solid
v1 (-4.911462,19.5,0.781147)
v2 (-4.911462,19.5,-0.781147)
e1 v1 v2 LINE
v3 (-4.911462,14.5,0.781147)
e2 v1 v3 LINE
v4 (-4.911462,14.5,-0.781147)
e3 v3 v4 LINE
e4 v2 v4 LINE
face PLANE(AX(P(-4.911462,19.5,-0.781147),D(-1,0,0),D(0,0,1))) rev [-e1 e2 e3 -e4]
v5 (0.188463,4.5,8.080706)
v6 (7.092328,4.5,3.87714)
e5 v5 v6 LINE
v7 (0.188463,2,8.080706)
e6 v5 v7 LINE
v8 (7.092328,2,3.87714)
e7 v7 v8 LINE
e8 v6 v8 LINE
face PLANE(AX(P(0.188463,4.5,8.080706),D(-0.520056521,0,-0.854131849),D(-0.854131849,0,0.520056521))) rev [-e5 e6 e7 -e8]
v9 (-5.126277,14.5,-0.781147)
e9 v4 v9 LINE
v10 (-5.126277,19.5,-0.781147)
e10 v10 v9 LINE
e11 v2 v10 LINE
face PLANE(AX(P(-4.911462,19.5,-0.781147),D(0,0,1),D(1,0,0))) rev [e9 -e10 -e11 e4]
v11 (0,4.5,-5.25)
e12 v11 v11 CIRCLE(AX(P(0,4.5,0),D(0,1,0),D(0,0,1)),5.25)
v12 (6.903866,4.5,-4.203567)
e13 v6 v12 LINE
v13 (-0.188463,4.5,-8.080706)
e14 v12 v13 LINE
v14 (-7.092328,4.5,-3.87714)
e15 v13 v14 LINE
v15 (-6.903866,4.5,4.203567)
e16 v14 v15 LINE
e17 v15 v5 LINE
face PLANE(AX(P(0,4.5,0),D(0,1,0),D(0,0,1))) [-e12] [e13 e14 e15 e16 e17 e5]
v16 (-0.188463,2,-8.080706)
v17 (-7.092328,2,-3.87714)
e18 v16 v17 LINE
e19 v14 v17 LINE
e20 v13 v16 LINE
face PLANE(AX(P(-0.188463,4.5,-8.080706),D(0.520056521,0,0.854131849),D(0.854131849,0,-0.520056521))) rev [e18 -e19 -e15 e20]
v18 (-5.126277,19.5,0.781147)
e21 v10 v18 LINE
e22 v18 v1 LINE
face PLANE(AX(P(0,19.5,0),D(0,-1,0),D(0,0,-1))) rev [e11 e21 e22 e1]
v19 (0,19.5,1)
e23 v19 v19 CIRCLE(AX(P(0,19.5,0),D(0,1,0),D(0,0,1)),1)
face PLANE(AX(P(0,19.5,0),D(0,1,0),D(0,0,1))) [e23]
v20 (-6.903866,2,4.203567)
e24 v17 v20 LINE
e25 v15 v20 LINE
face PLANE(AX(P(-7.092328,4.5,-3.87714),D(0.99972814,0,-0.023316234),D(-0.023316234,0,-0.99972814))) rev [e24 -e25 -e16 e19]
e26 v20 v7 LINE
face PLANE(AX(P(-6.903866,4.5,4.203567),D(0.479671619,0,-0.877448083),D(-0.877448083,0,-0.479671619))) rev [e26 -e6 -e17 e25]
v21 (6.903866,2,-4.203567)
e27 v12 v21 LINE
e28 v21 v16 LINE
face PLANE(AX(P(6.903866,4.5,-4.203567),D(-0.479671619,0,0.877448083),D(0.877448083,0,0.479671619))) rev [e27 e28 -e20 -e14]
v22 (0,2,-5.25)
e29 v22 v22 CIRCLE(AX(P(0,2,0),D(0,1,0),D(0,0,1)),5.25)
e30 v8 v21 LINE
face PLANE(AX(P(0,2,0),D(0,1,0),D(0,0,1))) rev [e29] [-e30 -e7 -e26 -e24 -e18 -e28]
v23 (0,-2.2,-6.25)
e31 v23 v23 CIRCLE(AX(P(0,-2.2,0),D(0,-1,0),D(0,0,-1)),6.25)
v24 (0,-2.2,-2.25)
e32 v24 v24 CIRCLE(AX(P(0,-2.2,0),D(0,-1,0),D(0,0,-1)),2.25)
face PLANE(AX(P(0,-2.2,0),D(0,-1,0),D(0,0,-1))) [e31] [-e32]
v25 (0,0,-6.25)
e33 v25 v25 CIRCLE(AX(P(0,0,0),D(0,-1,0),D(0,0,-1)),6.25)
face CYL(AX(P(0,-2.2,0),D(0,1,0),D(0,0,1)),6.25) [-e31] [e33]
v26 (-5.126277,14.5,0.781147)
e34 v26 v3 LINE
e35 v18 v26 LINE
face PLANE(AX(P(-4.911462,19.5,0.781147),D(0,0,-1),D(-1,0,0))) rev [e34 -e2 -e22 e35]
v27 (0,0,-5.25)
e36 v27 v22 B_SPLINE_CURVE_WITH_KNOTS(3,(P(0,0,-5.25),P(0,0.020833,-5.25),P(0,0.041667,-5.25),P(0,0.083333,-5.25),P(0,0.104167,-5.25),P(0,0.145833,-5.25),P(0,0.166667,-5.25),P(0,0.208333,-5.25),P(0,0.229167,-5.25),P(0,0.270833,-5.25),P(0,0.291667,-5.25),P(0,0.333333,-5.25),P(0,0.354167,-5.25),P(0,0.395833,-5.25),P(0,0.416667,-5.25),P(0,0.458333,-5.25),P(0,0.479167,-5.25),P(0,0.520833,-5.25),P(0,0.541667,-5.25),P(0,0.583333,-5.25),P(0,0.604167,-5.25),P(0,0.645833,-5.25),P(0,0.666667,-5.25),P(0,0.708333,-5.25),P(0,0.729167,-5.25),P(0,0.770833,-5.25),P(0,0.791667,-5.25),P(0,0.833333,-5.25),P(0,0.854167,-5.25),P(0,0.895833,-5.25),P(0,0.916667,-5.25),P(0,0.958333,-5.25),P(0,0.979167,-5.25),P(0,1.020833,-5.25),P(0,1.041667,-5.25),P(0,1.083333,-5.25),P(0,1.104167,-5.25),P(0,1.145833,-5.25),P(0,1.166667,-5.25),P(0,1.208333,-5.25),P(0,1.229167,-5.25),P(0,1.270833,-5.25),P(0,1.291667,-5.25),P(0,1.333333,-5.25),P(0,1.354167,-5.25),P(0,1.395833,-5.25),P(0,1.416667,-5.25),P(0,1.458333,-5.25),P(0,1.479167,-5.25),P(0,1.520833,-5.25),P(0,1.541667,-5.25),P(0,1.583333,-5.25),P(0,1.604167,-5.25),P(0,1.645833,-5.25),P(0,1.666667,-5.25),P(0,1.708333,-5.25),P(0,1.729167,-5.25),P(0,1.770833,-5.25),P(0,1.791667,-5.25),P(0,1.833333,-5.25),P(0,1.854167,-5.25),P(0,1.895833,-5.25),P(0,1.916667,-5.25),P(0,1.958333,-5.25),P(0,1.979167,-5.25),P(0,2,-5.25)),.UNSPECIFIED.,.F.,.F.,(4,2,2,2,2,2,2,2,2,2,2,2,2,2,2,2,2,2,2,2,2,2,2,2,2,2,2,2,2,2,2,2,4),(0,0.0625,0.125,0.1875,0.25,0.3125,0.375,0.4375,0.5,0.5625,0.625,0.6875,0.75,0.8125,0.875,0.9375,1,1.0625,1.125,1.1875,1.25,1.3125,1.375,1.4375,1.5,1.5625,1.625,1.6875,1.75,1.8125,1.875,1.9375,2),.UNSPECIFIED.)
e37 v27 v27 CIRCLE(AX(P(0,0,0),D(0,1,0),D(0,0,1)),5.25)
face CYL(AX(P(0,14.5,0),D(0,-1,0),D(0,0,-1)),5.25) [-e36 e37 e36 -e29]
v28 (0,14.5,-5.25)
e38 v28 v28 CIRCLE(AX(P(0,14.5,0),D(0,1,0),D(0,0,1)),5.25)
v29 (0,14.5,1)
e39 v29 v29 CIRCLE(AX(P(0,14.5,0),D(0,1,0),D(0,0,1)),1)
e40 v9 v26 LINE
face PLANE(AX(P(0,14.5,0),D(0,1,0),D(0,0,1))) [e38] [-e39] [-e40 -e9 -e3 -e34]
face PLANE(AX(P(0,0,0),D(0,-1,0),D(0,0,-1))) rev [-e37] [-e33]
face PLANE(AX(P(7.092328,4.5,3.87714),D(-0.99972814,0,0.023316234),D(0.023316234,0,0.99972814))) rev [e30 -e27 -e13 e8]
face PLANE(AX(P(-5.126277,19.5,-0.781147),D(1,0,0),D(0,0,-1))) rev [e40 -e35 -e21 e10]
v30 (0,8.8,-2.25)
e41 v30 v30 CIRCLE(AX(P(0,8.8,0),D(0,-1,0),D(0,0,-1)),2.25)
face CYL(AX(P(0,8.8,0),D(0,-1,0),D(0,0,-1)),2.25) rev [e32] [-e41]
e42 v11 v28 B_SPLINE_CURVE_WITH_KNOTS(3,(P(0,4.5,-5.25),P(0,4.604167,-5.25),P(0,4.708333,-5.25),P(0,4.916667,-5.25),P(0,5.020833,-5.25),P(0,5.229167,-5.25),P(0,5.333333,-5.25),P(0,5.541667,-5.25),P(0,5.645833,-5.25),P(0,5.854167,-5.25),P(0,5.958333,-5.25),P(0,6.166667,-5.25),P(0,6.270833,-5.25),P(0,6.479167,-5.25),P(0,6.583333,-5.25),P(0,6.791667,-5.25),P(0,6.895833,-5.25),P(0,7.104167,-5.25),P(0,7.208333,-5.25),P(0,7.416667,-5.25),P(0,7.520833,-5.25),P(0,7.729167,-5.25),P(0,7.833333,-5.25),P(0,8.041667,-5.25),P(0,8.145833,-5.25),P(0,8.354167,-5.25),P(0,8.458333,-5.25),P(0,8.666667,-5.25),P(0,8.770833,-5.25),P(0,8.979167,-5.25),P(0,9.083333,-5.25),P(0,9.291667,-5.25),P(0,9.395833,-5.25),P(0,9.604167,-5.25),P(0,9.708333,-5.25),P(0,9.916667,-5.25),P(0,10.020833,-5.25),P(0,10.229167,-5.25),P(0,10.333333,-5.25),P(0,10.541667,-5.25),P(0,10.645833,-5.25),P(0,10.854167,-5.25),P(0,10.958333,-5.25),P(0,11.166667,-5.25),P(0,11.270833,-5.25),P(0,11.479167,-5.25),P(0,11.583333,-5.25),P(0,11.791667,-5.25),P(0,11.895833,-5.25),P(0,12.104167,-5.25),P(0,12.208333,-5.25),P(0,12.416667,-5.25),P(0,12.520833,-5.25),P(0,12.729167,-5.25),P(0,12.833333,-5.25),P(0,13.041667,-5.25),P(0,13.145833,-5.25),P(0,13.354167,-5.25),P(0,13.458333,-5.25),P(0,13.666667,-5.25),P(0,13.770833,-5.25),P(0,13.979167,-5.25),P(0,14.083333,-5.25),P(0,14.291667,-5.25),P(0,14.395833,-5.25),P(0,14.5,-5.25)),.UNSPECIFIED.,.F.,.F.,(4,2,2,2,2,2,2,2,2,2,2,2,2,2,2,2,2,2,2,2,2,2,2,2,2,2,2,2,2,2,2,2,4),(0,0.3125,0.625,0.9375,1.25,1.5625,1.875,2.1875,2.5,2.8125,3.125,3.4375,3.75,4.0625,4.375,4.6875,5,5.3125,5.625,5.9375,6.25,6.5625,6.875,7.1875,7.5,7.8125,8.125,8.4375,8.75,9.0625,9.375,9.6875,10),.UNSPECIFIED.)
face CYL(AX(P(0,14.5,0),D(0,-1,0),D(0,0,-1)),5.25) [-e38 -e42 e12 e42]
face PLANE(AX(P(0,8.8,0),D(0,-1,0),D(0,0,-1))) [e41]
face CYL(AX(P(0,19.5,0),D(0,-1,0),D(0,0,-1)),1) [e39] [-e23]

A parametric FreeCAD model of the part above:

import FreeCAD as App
import Part
import Sketcher

V = App.Vector
Q = App.Units.Quantity


def add_polygon(sketch, points):
    """Adds a closed chain of lines whose ends are joined by coincident constraints."""
    first, n = sketch.GeometryCount, len(points)
    for a, b in zip(points, points[1:] + points[:1]):
        sketch.addGeometry(Part.LineSegment(App.Vector(*a, 0), App.Vector(*b, 0)), False)
    for i in range(n):
        sketch.addConstraint(Sketcher.Constraint("Coincident", first + i, 2, first + (i + 1) % n, 1))

doc = App.newDocument("Part")
body = doc.addObject("PartDesign::Body", "Body")

# Sketch on XZ plane
sketch1 = body.newObject("Sketcher::SketchObject", "Sketch")
sketch1.AttachmentSupport = (doc.getObject("XZ_Plane"), [""])
sketch1.MapMode = "FlatFace"
sketch1.addGeometry(Part.Circle(V(0, 0, 0), V(0, 0, 1), 5), False)
sketch1.addConstraint(Sketcher.Constraint("Coincident", 0, 3, -1, 1))
sketch1.addConstraint(Sketcher.Constraint("Diameter", 0, Q("10.5 mm")))
pad1 = body.newObject("PartDesign::Pad", "Pad")
pad1.Profile = sketch1
pad1.Length = 14.5
pad1.Reversed = True

# Sketch on XZ plane
sketch2 = body.newObject("Sketcher::SketchObject", "Sketch001")
sketch2.AttachmentSupport = (doc.getObject("XZ_Plane"), [""])
sketch2.MapMode = "FlatFace"
sketch2.AttachmentOffset = App.Placement(V(0, 0, -14.5), App.Rotation())
sketch2.addGeometry(Part.Circle(V(0, 0, 0), V(0, 0, 1), 1), False)  # 0
add_polygon(sketch2, [(-5.13, -0.78), (-5.13, 0.78), (-4.91, 0.78), (-4.91, -0.78)])  # lines 1-4
sketch2.addConstraint(Sketcher.Constraint("Vertical", 1))
sketch2.addConstraint(Sketcher.Constraint("Horizontal", 2))
sketch2.addConstraint(Sketcher.Constraint("Vertical", 3))
sketch2.addConstraint(Sketcher.Constraint("Horizontal", 4))
sketch2.addConstraint(Sketcher.Constraint("Coincident", 0, 3, -1, 1))
sketch2.addConstraint(Sketcher.Constraint("Diameter", 0, Q("2 mm")))
sketch2.addConstraint(Sketcher.Constraint("DistanceX", 2, 1, 2, 2, Q("0.214815 mm")))
sketch2.addConstraint(Sketcher.Constraint("DistanceY", 1, 1, 1, 2, Q("1.562294 mm")))
sketch2.addConstraint(Sketcher.Constraint("DistanceX", 2, 2, -1, 1, Q("4.911462 mm")))
sketch2.addConstraint(Sketcher.Constraint("DistanceY", -1, 1, 1, 2, Q("0.781147 mm")))
pad2 = body.newObject("PartDesign::Pad", "Pad001")
pad2.Profile = sketch2
pad2.Length = 5
pad2.Reversed = True

# Sketch on XZ plane
sketch3 = body.newObject("Sketcher::SketchObject", "Sketch002")
sketch3.AttachmentSupport = (doc.getObject("XZ_Plane"), [""])
sketch3.MapMode = "FlatFace"
sketch3.addGeometry(Part.Circle(V(0, 0, 0), V(0, 0, 1), 6), False)
sketch3.addConstraint(Sketcher.Constraint("Coincident", 0, 3, -1, 1))
sketch3.addConstraint(Sketcher.Constraint("Diameter", 0, Q("12.5 mm")))
pad3 = body.newObject("PartDesign::Pad", "Pad002")
pad3.Profile = sketch3
pad3.Length = 2.2

# Sketch on XZ plane
sketch4 = body.newObject("Sketcher::SketchObject", "Sketch003")
sketch4.AttachmentSupport = (doc.getObject("XZ_Plane"), [""])
sketch4.MapMode = "FlatFace"
sketch4.AttachmentOffset = App.Placement(V(0, 0, -2), App.Rotation())
add_polygon(sketch4, [(7, 4), (7, -4), (0, -8), (-7, -4), (-7, 4), (0, 8)])  # lines 0-5
sketch4.addConstraint(Sketcher.Constraint("Symmetric", 0, 2, 3, 2, -1, 1))
sketch4.addConstraint(Sketcher.Constraint("Symmetric", 1, 2, 4, 2, -1, 1))
sketch4.addConstraint(Sketcher.Constraint("Symmetric", 2, 2, 5, 2, -1, 1))
sketch4.addConstraint(Sketcher.Constraint("Equal", 0, 1))
sketch4.addConstraint(Sketcher.Constraint("Equal", 1, 2))
sketch4.addConstraint(Sketcher.Constraint("DistanceX", 2, 2, -1, 1, Q("7.092328 mm")))
sketch4.addConstraint(Sketcher.Constraint("DistanceY", 2, 2, -1, 1, Q("3.87714 mm")))
sketch4.addConstraint(Sketcher.Constraint("DistanceX", 1, 2, 0, 2, Q("7.092328 mm")))
sketch4.addConstraint(Sketcher.Constraint("DistanceY", 1, 2, 0, 2, Q("3.87714 mm")))
pad4 = body.newObject("PartDesign::Pad", "Pad003")
pad4.Profile = sketch4
pad4.Length = 2.5
pad4.Reversed = True

# Sketch on XZ plane
sketch5 = body.newObject("Sketcher::SketchObject", "Sketch004")
sketch5.AttachmentSupport = (doc.getObject("XZ_Plane"), [""])
sketch5.MapMode = "FlatFace"
sketch5.AttachmentOffset = App.Placement(V(0, 0, 2.2), App.Rotation())
sketch5.addGeometry(Part.Circle(V(0, 0, 0), V(0, 0, 1), 2.2), False)
sketch5.addConstraint(Sketcher.Constraint("Coincident", 0, 3, -1, 1))
sketch5.addConstraint(Sketcher.Constraint("Diameter", 0, Q("4.5 mm")))
pocket1 = body.newObject("PartDesign::Pocket", "Pocket")
pocket1.Profile = sketch5
pocket1.Length = 11

doc.recompute()
